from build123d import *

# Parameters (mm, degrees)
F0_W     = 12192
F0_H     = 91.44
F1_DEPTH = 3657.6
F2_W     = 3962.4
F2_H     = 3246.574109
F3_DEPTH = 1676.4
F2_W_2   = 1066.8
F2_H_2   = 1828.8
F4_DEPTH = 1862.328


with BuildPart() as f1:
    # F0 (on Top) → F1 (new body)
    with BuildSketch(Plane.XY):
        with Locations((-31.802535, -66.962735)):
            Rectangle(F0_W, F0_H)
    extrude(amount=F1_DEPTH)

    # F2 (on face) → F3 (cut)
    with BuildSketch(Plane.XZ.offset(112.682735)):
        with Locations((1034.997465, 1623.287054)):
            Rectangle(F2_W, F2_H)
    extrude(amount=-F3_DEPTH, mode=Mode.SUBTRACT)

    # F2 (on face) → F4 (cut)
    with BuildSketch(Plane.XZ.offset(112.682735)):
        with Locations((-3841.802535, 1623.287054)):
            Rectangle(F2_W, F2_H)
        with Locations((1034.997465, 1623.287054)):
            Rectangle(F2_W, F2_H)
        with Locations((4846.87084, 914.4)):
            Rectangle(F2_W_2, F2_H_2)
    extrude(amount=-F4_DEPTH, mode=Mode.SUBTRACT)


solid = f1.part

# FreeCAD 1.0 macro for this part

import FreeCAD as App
import Part
import Sketcher

V = App.Vector
Q = App.Units.Quantity

doc = App.newDocument("Part")
body = doc.addObject("PartDesign::Body", "Body")

sketch1 = body.newObject("Sketcher::SketchObject", "Sketch")
sketch1.AttachmentSupport = (doc.getObject("XY_Plane"), [""])
sketch1.MapMode = "FlatFace"
sketch1.addGeometry([
    Part.LineSegment(V(-6128, -21, 0), V(-6128, -113, 0)),
    Part.LineSegment(V(-6128, -113, 0), V(6064, -113, 0)),
    Part.LineSegment(V(6064, -113, 0), V(6064, -21, 0)),
    Part.LineSegment(V(6064, -21, 0), V(-6128, -21, 0)),
], False)
sketch1.addConstraint([
    Sketcher.Constraint("Coincident", 0, 2, 1, 1),
    Sketcher.Constraint("Coincident", 1, 2, 2, 1),
    Sketcher.Constraint("Coincident", 2, 2, 3, 1),
    Sketcher.Constraint("Coincident", 3, 2, 0, 1),
    Sketcher.Constraint("Vertical", 0),
    Sketcher.Constraint("Horizontal", 1),
    Sketcher.Constraint("Vertical", 2),
    Sketcher.Constraint("Horizontal", 3),
    Sketcher.Constraint("DistanceX", 1, 1, 1, 2, Q("480 in")),
    Sketcher.Constraint("DistanceY", 0, 2, 0, 1, Q("3.6 in")),
    Sketcher.Constraint("DistanceX", 0, 2, -1, 1, Q("6127.802535 mm")),
    Sketcher.Constraint("DistanceY", 0, 2, -1, 1, Q("112.682735 mm")),
])
pad1 = body.newObject("PartDesign::Pad", "Pad")
pad1.Profile = sketch1
pad1.Length = Q("144 in")

sketch2 = body.newObject("Sketcher::SketchObject", "Sketch001")
sketch2.AttachmentSupport = (doc.getObject("XZ_Plane"), [""])
sketch2.MapMode = "FlatFace"
sketch2.AttachmentOffset = App.Placement(V(0, 0, 112.682735), App.Rotation())
sketch2.addGeometry([
    Part.LineSegment(V(-946, 3247, 0), V(-946, 0, 0)),
    Part.LineSegment(V(-946, 0, 0), V(3016, 0, 0)),
    Part.LineSegment(V(3016, 0, 0), V(3016, 3247, 0)),
    Part.LineSegment(V(3016, 3247, 0), V(-946, 3247, 0)),
], False)
sketch2.addConstraint([
    Sketcher.Constraint("Coincident", 0, 2, 1, 1),
    Sketcher.Constraint("Coincident", 1, 2, 2, 1),
    Sketcher.Constraint("Coincident", 2, 2, 3, 1),
    Sketcher.Constraint("Coincident", 3, 2, 0, 1),
    Sketcher.Constraint("Vertical", 0),
    Sketcher.Constraint("Horizontal", 1),
    Sketcher.Constraint("Vertical", 2),
    Sketcher.Constraint("Horizontal", 3),
    Sketcher.Constraint("PointOnObject", 0, 2, -1),
    Sketcher.Constraint("DistanceX", 1, 1, 1, 2, Q("156 in")),
    Sketcher.Constraint("DistanceY", 0, 2, 0, 1, Q("3246.574109 mm")),
    Sketcher.Constraint("DistanceX", 0, 2, -1, 1, Q("946.202535 mm")),
])
pocket1 = body.newObject("PartDesign::Pocket", "Pocket")
pocket1.Profile = sketch2
pocket1.Length = Q("66 in")

sketch3 = body.newObject("Sketcher::SketchObject", "Sketch002")
sketch3.AttachmentSupport = (doc.getObject("XZ_Plane"), [""])
sketch3.MapMode = "FlatFace"
sketch3.AttachmentOffset = App.Placement(V(0, 0, 112.682735), App.Rotation())
sketch3.addGeometry([
    Part.LineSegment(V(-5823, 3247, 0), V(-5823, 0, 0)),
    Part.LineSegment(V(-5823, 0, 0), V(-1861, 0, 0)),
    Part.LineSegment(V(-1861, 0, 0), V(-1861, 3247, 0)),
    Part.LineSegment(V(-1861, 3247, 0), V(-5823, 3247, 0)),
    Part.LineSegment(V(-946, 3247, 0), V(-946, 0, 0)),
    Part.LineSegment(V(-946, 0, 0), V(3016, 0, 0)),
    Part.LineSegment(V(3016, 0, 0), V(3016, 3247, 0)),
    Part.LineSegment(V(3016, 3247, 0), V(-946, 3247, 0)),
    Part.LineSegment(V(4313, 1829, 0), V(4313, 0, 0)),
    Part.LineSegment(V(4313, 0, 0), V(5380, 0, 0)),
    Part.LineSegment(V(5380, 0, 0), V(5380, 1829, 0)),
    Part.LineSegment(V(5380, 1829, 0), V(4313, 1829, 0)),
], False)
sketch3.addConstraint([
    Sketcher.Constraint("Coincident", 0, 2, 1, 1),
    Sketcher.Constraint("Coincident", 1, 2, 2, 1),
    Sketcher.Constraint("Coincident", 2, 2, 3, 1),
    Sketcher.Constraint("Coincident", 3, 2, 0, 1),
    Sketcher.Constraint("Coincident", 4, 2, 5, 1),
    Sketcher.Constraint("Coincident", 5, 2, 6, 1),
    Sketcher.Constraint("Coincident", 6, 2, 7, 1),
    Sketcher.Constraint("Coincident", 7, 2, 4, 1),
    Sketcher.Constraint("Coincident", 8, 2, 9, 1),
    Sketcher.Constraint("Coincident", 9, 2, 10, 1),
    Sketcher.Constraint("Coincident", 10, 2, 11, 1),
    Sketcher.Constraint("Coincident", 11, 2, 8, 1),
    Sketcher.Constraint("Vertical", 0),
    Sketcher.Constraint("Horizontal", 1),
    Sketcher.Constraint("Vertical", 2),
    Sketcher.Constraint("Horizontal", 3),
    Sketcher.Constraint("Vertical", 4),
    Sketcher.Constraint("Horizontal", 5),
    Sketcher.Constraint("Vertical", 6),
    Sketcher.Constraint("Horizontal", 7),
    Sketcher.Constraint("Vertical", 8),
    Sketcher.Constraint("Horizontal", 9),
    Sketcher.Constraint("Vertical", 10),
    Sketcher.Constraint("Horizontal", 11),
    Sketcher.Constraint("PointOnObject", 0, 2, -1),
    Sketcher.Constraint("PointOnObject", 4, 2, -1),
    Sketcher.Constraint("PointOnObject", 8, 2, -1),
    Sketcher.Constraint("Horizontal", 3, 2, 6, 2),
    Sketcher.Constraint("Equal", 3, 5),
    Sketcher.Constraint("DistanceX", 1, 1, 1, 2, Q("156 in")),
    Sketcher.Constraint("DistanceX", 9, 1, 9, 2, Q("42 in")),
    Sketcher.Constraint("DistanceY", 8, 2, 8, 1, Q("72 in")),
    Sketcher.Constraint("DistanceX", 1, 2, 4, 2, Q("36 in")),
    Sketcher.Constraint("DistanceY", 0, 2, 0, 1, Q("3246.574109 mm")),
    Sketcher.Constraint("DistanceX", -1, 1, 8, 2, Q("4313.47084 mm")),
    Sketcher.Constraint("DistanceX", 0, 2, -1, 1, Q("5823.002535 mm")),
])
pocket2 = body.newObject("PartDesign::Pocket", "Pocket001")
pocket2.Profile = sketch3
pocket2.Length = Q("73.32 in")

doc.recompute()
